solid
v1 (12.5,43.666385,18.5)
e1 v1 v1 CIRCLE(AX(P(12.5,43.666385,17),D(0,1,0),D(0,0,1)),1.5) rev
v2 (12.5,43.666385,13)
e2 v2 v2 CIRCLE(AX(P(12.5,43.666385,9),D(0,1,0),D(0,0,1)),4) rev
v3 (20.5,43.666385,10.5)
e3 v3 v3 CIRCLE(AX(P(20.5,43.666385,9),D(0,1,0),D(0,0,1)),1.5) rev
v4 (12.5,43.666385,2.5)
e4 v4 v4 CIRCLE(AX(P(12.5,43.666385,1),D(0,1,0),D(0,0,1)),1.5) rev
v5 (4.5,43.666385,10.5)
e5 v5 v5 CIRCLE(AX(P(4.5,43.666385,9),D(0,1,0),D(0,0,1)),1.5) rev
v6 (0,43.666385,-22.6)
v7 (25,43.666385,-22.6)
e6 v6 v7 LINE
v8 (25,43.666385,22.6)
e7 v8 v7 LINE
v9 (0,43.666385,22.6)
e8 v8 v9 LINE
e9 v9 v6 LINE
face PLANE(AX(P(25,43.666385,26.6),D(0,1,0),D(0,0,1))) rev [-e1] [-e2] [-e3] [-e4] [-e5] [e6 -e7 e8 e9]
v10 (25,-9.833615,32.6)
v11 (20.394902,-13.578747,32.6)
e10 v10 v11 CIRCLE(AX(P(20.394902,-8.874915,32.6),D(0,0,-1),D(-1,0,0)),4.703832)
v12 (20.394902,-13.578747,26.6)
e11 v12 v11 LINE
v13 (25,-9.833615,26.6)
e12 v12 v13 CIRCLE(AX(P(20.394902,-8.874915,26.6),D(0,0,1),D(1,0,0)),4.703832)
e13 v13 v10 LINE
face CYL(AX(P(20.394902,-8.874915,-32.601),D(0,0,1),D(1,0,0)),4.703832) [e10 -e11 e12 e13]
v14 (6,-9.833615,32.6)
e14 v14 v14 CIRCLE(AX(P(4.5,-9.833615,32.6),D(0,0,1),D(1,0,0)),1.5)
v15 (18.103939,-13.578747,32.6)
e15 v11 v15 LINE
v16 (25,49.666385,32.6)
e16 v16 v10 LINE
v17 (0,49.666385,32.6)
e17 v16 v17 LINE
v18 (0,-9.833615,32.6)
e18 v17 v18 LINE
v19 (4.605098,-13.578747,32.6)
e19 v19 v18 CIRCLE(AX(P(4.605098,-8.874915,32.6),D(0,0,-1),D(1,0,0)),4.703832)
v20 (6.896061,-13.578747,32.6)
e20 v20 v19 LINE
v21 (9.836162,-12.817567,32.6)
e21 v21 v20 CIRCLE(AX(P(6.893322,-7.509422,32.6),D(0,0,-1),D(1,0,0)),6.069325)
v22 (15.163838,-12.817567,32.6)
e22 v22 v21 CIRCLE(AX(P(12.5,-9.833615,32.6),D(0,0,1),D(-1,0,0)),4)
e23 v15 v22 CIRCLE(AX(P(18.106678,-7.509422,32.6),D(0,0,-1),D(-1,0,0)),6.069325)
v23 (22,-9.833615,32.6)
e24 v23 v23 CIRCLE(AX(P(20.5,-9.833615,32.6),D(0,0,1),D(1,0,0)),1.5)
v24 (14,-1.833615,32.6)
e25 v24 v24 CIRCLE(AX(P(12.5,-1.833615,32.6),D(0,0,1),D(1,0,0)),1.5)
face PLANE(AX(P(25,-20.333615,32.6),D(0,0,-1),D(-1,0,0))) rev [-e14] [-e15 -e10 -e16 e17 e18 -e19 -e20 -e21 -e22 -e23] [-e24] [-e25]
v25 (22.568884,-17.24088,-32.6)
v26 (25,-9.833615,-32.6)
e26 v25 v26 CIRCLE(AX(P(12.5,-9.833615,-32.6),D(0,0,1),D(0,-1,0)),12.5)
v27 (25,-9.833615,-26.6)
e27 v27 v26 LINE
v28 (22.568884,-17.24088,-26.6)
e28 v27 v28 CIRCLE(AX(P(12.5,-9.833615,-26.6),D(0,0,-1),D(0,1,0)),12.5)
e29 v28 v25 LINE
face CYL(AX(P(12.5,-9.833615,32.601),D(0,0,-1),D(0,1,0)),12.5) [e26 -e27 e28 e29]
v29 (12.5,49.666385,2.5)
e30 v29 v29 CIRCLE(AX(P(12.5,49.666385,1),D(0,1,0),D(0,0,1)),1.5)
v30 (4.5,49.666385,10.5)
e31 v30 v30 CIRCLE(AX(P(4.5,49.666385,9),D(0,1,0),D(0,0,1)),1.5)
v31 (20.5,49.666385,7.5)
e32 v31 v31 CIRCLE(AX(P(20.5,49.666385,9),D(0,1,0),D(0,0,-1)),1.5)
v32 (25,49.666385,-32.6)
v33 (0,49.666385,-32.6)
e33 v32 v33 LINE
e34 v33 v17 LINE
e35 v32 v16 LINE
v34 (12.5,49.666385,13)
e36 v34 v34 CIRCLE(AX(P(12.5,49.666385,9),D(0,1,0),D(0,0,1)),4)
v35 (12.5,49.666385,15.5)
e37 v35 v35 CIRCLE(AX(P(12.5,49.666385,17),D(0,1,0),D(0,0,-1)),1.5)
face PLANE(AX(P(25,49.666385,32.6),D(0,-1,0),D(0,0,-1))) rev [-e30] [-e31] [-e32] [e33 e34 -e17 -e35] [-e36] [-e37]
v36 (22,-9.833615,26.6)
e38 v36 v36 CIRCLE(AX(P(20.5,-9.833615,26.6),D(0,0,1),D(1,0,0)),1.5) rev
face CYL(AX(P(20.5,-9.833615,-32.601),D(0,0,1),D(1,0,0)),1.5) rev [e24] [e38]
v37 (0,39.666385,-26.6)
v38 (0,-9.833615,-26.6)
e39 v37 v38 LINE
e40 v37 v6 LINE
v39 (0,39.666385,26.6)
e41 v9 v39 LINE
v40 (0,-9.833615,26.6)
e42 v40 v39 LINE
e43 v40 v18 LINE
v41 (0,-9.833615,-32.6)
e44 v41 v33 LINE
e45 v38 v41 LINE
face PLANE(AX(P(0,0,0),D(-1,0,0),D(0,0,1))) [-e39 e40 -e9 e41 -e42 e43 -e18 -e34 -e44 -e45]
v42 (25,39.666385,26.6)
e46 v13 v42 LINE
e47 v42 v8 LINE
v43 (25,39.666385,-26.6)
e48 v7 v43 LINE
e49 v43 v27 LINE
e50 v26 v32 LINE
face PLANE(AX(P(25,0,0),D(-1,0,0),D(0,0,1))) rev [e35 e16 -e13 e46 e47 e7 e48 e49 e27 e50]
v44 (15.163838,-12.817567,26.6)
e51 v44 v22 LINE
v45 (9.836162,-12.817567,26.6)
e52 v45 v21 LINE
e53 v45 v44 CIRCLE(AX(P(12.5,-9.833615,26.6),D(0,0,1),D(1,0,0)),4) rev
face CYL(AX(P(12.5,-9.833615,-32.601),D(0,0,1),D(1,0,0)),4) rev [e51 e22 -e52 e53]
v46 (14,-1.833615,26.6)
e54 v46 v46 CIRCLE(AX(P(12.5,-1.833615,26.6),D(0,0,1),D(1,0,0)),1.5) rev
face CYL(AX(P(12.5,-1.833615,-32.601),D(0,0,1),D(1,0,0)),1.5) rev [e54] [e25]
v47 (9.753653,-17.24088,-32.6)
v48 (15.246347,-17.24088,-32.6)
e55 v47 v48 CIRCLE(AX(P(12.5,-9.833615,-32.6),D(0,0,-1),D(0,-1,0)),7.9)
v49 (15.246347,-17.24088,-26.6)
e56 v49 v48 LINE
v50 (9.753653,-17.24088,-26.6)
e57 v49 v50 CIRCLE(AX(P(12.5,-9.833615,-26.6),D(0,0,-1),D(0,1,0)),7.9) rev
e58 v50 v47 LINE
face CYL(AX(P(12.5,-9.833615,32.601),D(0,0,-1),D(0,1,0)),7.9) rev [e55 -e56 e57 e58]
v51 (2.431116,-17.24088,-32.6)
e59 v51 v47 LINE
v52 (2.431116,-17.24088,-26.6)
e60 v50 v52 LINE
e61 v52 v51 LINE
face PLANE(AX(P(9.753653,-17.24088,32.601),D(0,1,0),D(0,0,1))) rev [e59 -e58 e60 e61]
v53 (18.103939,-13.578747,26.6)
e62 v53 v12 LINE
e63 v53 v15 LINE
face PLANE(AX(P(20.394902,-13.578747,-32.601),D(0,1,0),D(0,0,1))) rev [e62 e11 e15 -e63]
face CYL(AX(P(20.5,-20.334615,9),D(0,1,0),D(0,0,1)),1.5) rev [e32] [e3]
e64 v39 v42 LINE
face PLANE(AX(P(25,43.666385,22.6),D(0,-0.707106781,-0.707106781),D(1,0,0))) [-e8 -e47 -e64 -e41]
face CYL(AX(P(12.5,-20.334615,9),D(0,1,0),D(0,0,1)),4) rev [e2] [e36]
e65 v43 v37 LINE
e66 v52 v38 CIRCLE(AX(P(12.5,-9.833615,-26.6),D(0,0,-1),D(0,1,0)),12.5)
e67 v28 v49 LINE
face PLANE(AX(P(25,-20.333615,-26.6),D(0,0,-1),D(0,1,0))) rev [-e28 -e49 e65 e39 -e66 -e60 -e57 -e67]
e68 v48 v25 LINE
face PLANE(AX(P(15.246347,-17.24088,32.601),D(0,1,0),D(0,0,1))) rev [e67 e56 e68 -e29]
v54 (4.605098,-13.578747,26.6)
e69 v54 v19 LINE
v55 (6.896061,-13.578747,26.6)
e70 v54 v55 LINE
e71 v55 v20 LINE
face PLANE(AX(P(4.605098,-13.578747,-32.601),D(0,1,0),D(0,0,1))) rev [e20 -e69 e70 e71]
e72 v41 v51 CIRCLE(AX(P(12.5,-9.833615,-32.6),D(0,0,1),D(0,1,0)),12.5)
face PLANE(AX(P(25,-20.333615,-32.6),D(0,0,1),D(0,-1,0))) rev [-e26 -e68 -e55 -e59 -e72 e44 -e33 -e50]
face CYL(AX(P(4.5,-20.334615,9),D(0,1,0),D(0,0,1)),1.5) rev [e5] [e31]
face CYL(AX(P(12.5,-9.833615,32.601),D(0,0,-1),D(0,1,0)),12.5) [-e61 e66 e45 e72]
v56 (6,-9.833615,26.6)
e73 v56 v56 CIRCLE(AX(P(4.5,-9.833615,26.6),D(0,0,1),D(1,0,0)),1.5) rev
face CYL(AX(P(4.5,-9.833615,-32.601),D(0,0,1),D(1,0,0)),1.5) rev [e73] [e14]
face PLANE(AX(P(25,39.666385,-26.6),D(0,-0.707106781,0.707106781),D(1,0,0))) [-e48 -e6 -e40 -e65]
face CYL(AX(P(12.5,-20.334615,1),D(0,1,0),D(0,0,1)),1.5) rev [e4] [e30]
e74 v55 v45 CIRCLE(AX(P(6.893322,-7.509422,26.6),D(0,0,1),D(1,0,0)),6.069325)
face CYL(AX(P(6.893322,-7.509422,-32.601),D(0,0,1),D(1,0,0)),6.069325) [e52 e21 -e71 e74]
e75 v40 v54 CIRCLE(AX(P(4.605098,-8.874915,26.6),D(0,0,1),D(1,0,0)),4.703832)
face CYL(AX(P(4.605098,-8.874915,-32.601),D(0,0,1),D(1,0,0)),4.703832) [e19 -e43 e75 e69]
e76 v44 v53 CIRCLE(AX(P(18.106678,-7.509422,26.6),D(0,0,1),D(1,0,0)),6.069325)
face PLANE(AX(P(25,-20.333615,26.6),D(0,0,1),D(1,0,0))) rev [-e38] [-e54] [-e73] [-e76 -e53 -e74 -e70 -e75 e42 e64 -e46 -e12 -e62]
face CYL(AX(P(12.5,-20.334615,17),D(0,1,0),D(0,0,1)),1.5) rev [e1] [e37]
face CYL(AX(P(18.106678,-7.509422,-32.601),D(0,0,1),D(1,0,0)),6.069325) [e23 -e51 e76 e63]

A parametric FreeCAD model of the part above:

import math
import FreeCAD as App
import Part
import Sketcher

V = App.Vector


def edges_at(feature, points):
    """Names of the edges that pass closest to the given points."""
    edges = feature.Shape.Edges
    near = lambda p: min(range(len(edges)), key=lambda i: edges[i].distToShape(Part.Vertex(*p))[0])
    return sorted({f"Edge{near(p) + 1}" for p in points})

doc = App.newDocument("Part")
body = doc.addObject("PartDesign::Body", "Body")

# Sketch on YZ plane
sketch1 = body.newObject("Sketcher::SketchObject", "Sketch")
sketch1.AttachmentSupport = (doc.getObject("YZ_Plane"), [""])
sketch1.MapMode = "FlatFace"
sketch1.addGeometry([
    Part.LineSegment(V(-20, 27, 0), V(44, 27, 0)),  # 0
    Part.LineSegment(V(44, 27, 0), V(44, -27, 0)),  # 1
    Part.LineSegment(V(44, -27, 0), V(-20, -27, 0)),  # 2
    Part.LineSegment(V(-20, -27, 0), V(-20, -33, 0)),  # 3
    Part.LineSegment(V(-20, -33, 0), V(50, -33, 0)),  # 4
    Part.LineSegment(V(50, -33, 0), V(50, 33, 0)),  # 5
    Part.LineSegment(V(50, 33, 0), V(-20, 33, 0)),  # 6
    Part.LineSegment(V(-20, 33, 0), V(-20, 27, 0)),  # 7
], False)
sketch1.addConstraint([
    Sketcher.Constraint("Coincident", 0, 2, 1, 1),
    Sketcher.Constraint("Coincident", 1, 2, 2, 1),
    Sketcher.Constraint("Coincident", 2, 2, 3, 1),
    Sketcher.Constraint("Coincident", 3, 2, 4, 1),
    Sketcher.Constraint("Coincident", 4, 2, 5, 1),
    Sketcher.Constraint("Coincident", 5, 2, 6, 1),
    Sketcher.Constraint("Coincident", 6, 2, 7, 1),
    Sketcher.Constraint("Coincident", 7, 2, 0, 1),
    Sketcher.Constraint("Horizontal", 0),
    Sketcher.Constraint("Vertical", 1),
    Sketcher.Constraint("Horizontal", 2),
    Sketcher.Constraint("Vertical", 3),
    Sketcher.Constraint("Horizontal", 4),
    Sketcher.Constraint("Vertical", 5),
    Sketcher.Constraint("Horizontal", 6),
    Sketcher.Constraint("Vertical", 7),
    Sketcher.Constraint("Symmetric", 3, 2, 6, 2, -1),
    Sketcher.Constraint("Equal", 3, 7),
    Sketcher.Constraint("DistanceX", 0, 1, 0, 2, 64.0),
    Sketcher.Constraint("DistanceX", 4, 1, 4, 2, 70.0),
    Sketcher.Constraint("DistanceY", 3, 2, 3, 1, 6.0),
    Sketcher.Constraint("DistanceY", 1, 2, 1, 1, 53.2),
    Sketcher.Constraint("DistanceX", -1, 1, 0, 2, 43.666385),
])
pad1 = body.newObject("PartDesign::Pad", "Pad")
pad1.Profile = sketch1
pad1.Length = 25

# Sketch on XY plane
sketch2 = body.newObject("Sketcher::SketchObject", "Sketch001")
sketch2.AttachmentSupport = (doc.getObject("XY_Plane"), [""])
sketch2.MapMode = "FlatFace"
sketch2.AttachmentOffset = App.Placement(V(0, 0, -32.6), App.Rotation())
sketch2.addGeometry([
    Part.LineSegment(V(15, -17, 0), V(23, -17, 0)),  # 0
    Part.ArcOfCircle(Part.Circle(V(12, -10, 0), V(0, 0, 1), 13), math.radians(-36), math.radians(0)),  # 1
    Part.LineSegment(V(25, -10, 0), V(25, -20, 0)),  # 2
    Part.LineSegment(V(25, -20, 0), V(0, -20, 0)),  # 3
    Part.LineSegment(V(0, -20, 0), V(0, -10, 0)),  # 4
    Part.ArcOfCircle(Part.Circle(V(13, -10, 0), V(0, 0, 1), 13), math.radians(-180), math.radians(-144)),  # 5
    Part.LineSegment(V(2, -17, 0), V(10, -17, 0)),  # 6
    Part.ArcOfCircle(Part.Circle(V(12, -10, 0), V(0, 0, 1), 8), math.radians(-70), math.radians(250)),  # 7
], False)
sketch2.addConstraint([
    Sketcher.Constraint("Coincident", 0, 2, 1, 1),
    Sketcher.Constraint("Tangent", 1, 2, 2, 1),
    Sketcher.Constraint("Coincident", 2, 2, 3, 1),
    Sketcher.Constraint("Coincident", 3, 2, 4, 1),
    Sketcher.Constraint("Tangent", 4, 2, 5, 1),
    Sketcher.Constraint("Coincident", 5, 2, 6, 1),
    Sketcher.Constraint("Coincident", 6, 2, 7, 2),
    Sketcher.Constraint("Coincident", 7, 1, 0, 1),
    Sketcher.Constraint("Horizontal", 0),
    Sketcher.Constraint("Vertical", 2),
    Sketcher.Constraint("Horizontal", 3),
    Sketcher.Constraint("Vertical", 4),
    Sketcher.Constraint("Horizontal", 6),
    Sketcher.Constraint("Coincident", 5, 3, 1, 3),
    Sketcher.Constraint("Coincident", 7, 3, 1, 3),
    Sketcher.Constraint("Equal", 1, 5),
    Sketcher.Constraint("PointOnObject", 3, 2, -2),
    Sketcher.Constraint("Horizontal", 0, 2, 5, 2),
    Sketcher.Constraint("Radius", 1, 12.5),
    Sketcher.Constraint("Radius", 7, 7.9),
    Sketcher.Constraint("DistanceY", 2, 2, 2, 1, 10.5),
    Sketcher.Constraint("DistanceX", 0, 1, 0, 2, 7.322537),
    Sketcher.Constraint("DistanceY", 0, 2, -1, 1, 17.24088),
])
pocket1 = body.newObject("PartDesign::Pocket", "Pocket")
pocket1.Profile = sketch2
pocket1.Type = "UpToFirst"
pocket1.Reversed = True

# Sketch on XZ plane
sketch3 = body.newObject("Sketcher::SketchObject", "Sketch002")
sketch3.AttachmentSupport = (doc.getObject("XZ_Plane"), [""])
sketch3.MapMode = "FlatFace"
sketch3.AttachmentOffset = App.Placement(V(0, 0, -49.666385), App.Rotation())
sketch3.addGeometry(Part.Circle(V(12.5, 1, 0), V(0, 0, 1), 1.5), False)
sketch3.addConstraint([
    Sketcher.Constraint("Diameter", 0, 3.0),
    Sketcher.Constraint("DistanceY", -1, 1, 0, 3, 1.0),
    Sketcher.Constraint("DistanceX", -1, 1, 0, 3, 12.5),
])
pocket2 = body.newObject("PartDesign::Pocket", "Pocket001")
pocket2.Profile = sketch3
pocket2.Type = "UpToFirst"
pocket2.Reversed = True

# Sketch on XZ plane
sketch4 = body.newObject("Sketcher::SketchObject", "Sketch003")
sketch4.AttachmentSupport = (doc.getObject("XZ_Plane"), [""])
sketch4.MapMode = "FlatFace"
sketch4.AttachmentOffset = App.Placement(V(0, 0, -49.666385), App.Rotation())
sketch4.addGeometry(Part.Circle(V(4.5, 9, 0), V(0, 0, 1), 1.5), False)
sketch4.addConstraint([
    Sketcher.Constraint("Diameter", 0, 3.0),
    Sketcher.Constraint("DistanceY", -1, 1, 0, 3, 9.0),
    Sketcher.Constraint("DistanceX", -1, 1, 0, 3, 4.5),
])
pocket3 = body.newObject("PartDesign::Pocket", "Pocket002")
pocket3.Profile = sketch4
pocket3.Type = "UpToFirst"
pocket3.Reversed = True

# Sketch on XZ plane
sketch5 = body.newObject("Sketcher::SketchObject", "Sketch004")
sketch5.AttachmentSupport = (doc.getObject("XZ_Plane"), [""])
sketch5.MapMode = "FlatFace"
sketch5.AttachmentOffset = App.Placement(V(0, 0, -49.666385), App.Rotation())
sketch5.addGeometry(Part.Circle(V(12.5, 17, 0), V(0, 0, 1), 1.5), False)
sketch5.addConstraint([
    Sketcher.Constraint("Diameter", 0, 3.0),
    Sketcher.Constraint("DistanceY", -1, 1, 0, 3, 17.0),
    Sketcher.Constraint("DistanceX", -1, 1, 0, 3, 12.5),
])
pocket4 = body.newObject("PartDesign::Pocket", "Pocket003")
pocket4.Profile = sketch5
pocket4.Type = "UpToFirst"
pocket4.Reversed = True

# Sketch on XZ plane
sketch6 = body.newObject("Sketcher::SketchObject", "Sketch005")
sketch6.AttachmentSupport = (doc.getObject("XZ_Plane"), [""])
sketch6.MapMode = "FlatFace"
sketch6.AttachmentOffset = App.Placement(V(0, 0, -49.666385), App.Rotation())
sketch6.addGeometry(Part.Circle(V(20.5, 9, 0), V(0, 0, 1), 1.5), False)
sketch6.addConstraint([
    Sketcher.Constraint("Diameter", 0, 3.0),
    Sketcher.Constraint("DistanceY", -1, 1, 0, 3, 9.0),
    Sketcher.Constraint("DistanceX", -1, 1, 0, 3, 20.5),
])
pocket5 = body.newObject("PartDesign::Pocket", "Pocket004")
pocket5.Profile = sketch6
pocket5.Type = "UpToFirst"
pocket5.Reversed = True

# Sketch on XZ plane
sketch7 = body.newObject("Sketcher::SketchObject", "Sketch006")
sketch7.AttachmentSupport = (doc.getObject("XZ_Plane"), [""])
sketch7.MapMode = "FlatFace"
sketch7.AttachmentOffset = App.Placement(V(0, 0, -49.666385), App.Rotation())
sketch7.addGeometry(Part.Circle(V(12.5, 9, 0), V(0, 0, 1), 4), False)
sketch7.addConstraint([
    Sketcher.Constraint("Diameter", 0, 8.0),
    Sketcher.Constraint("DistanceY", -1, 1, 0, 3, 9.0),
    Sketcher.Constraint("DistanceX", -1, 1, 0, 3, 12.5),
])
pocket6 = body.newObject("PartDesign::Pocket", "Pocket005")
pocket6.Profile = sketch7
pocket6.Type = "UpToFirst"
pocket6.Reversed = True
doc.recompute()

chamfer = body.newObject("PartDesign::Chamfer", "Chamfer")
chamfer.Base = (pocket6, edges_at(pocket6, [(12.5, 43.666, -26.6), (12.5, 43.666, 26.6)]))
chamfer.Size = 4

# Sketch on XY plane
sketch8 = body.newObject("Sketcher::SketchObject", "Sketch007")
sketch8.AttachmentSupport = (doc.getObject("XY_Plane"), [""])
sketch8.MapMode = "FlatFace"
sketch8.AttachmentOffset = App.Placement(V(0, 0, 32.6), App.Rotation())
sketch8.addGeometry(Part.Circle(V(4.5, -9.8, 0), V(0, 0, 1), 1.5), False)
sketch8.addConstraint([
    Sketcher.Constraint("Diameter", 0, 3.0),
    Sketcher.Constraint("DistanceX", -1, 1, 0, 3, 4.5),
    Sketcher.Constraint("DistanceY", 0, 3, -1, 1, 9.833615),
])
pocket7 = body.newObject("PartDesign::Pocket", "Pocket006")
pocket7.Profile = sketch8
pocket7.Type = "UpToFirst"

# Sketch on XY plane
sketch9 = body.newObject("Sketcher::SketchObject", "Sketch008")
sketch9.AttachmentSupport = (doc.getObject("XY_Plane"), [""])
sketch9.MapMode = "FlatFace"
sketch9.AttachmentOffset = App.Placement(V(0, 0, 32.6), App.Rotation())
sketch9.addGeometry(Part.Circle(V(12.5, -1.8, 0), V(0, 0, 1), 1.5), False)
sketch9.addConstraint([
    Sketcher.Constraint("Diameter", 0, 3.0),
    Sketcher.Constraint("DistanceX", -1, 1, 0, 3, 12.5),
    Sketcher.Constraint("DistanceY", 0, 3, -1, 1, 1.833615),
])
pocket8 = body.newObject("PartDesign::Pocket", "Pocket007")
pocket8.Profile = sketch9
pocket8.Type = "UpToFirst"

# Sketch on XY plane
sketch10 = body.newObject("Sketcher::SketchObject", "Sketch009")
sketch10.AttachmentSupport = (doc.getObject("XY_Plane"), [""])
sketch10.MapMode = "FlatFace"
sketch10.AttachmentOffset = App.Placement(V(0, 0, 32.6), App.Rotation())
sketch10.addGeometry(Part.Circle(V(20.5, -9.8, 0), V(0, 0, 1), 1.5), False)
sketch10.addConstraint([
    Sketcher.Constraint("Diameter", 0, 3.0),
    Sketcher.Constraint("DistanceX", -1, 1, 0, 3, 20.5),
    Sketcher.Constraint("DistanceY", 0, 3, -1, 1, 9.833615),
])
pocket9 = body.newObject("PartDesign::Pocket", "Pocket008")
pocket9.Profile = sketch10
pocket9.Type = "UpToFirst"

# Sketch on XY plane
sketch11 = body.newObject("Sketcher::SketchObject", "Sketch010")
sketch11.AttachmentSupport = (doc.getObject("XY_Plane"), [""])
sketch11.MapMode = "FlatFace"
sketch11.AttachmentOffset = App.Placement(V(0, 0, 32.6), App.Rotation())
sketch11.addGeometry([
    Part.LineSegment(V(6.9, -13.6, 0), V(4.6, -13.6, 0)),  # 0
    Part.ArcOfCircle(Part.Circle(V(4.6, -8.9, 0), V(0, 0, 1), 4.7), math.radians(-168), math.radians(-90)),  # 1
    Part.LineSegment(V(0, -9.8, 0), V(0, -20.3, 0)),  # 2
    Part.LineSegment(V(0, -20.3, 0), V(25, -20.3, 0)),  # 3
    Part.LineSegment(V(25, -20.3, 0), V(25, -9.8, 0)),  # 4
    Part.ArcOfCircle(Part.Circle(V(20.4, -8.9, 0), V(0, 0, 1), 4.7), math.radians(-90), math.radians(-12)),  # 5
    Part.LineSegment(V(20.4, -13.6, 0), V(18.1, -13.6, 0)),  # 6
    Part.ArcOfCircle(Part.Circle(V(18.1, -7.5, 0), V(0, 0, 1), 6.1), math.radians(-119), math.radians(-90)),  # 7
    Part.ArcOfCircle(Part.Circle(V(12.5, -9.8, 0), V(0, 0, 1), 4), math.radians(-48), math.radians(228)),  # 8
    Part.ArcOfCircle(Part.Circle(V(6.9, -7.5, 0), V(0, 0, 1), 6.1), math.radians(-90), math.radians(-61)),  # 9
], False)
sketch11.addConstraint([
    Sketcher.Constraint("Tangent", 0, 2, 1, 2),
    Sketcher.Constraint("Coincident", 1, 1, 2, 1),
    Sketcher.Constraint("Coincident", 2, 2, 3, 1),
    Sketcher.Constraint("Coincident", 3, 2, 4, 1),
    Sketcher.Constraint("Coincident", 4, 2, 5, 2),
    Sketcher.Constraint("Tangent", 5, 1, 6, 1),
    Sketcher.Constraint("Coincident", 6, 2, 7, 2),
    Sketcher.Constraint("Coincident", 7, 1, 8, 1),
    Sketcher.Constraint("Coincident", 8, 2, 9, 2),
    Sketcher.Constraint("Coincident", 9, 1, 0, 1),
    Sketcher.Constraint("Horizontal", 0),
    Sketcher.Constraint("Vertical", 2),
    Sketcher.Constraint("Horizontal", 3),
    Sketcher.Constraint("Vertical", 4),
    Sketcher.Constraint("Horizontal", 6),
    Sketcher.Constraint("Equal", 1, 5),
    Sketcher.Constraint("Equal", 7, 9),
    Sketcher.Constraint("PointOnObject", 1, 1, -2),
    Sketcher.Constraint("Horizontal", 1, 3, 5, 3),
    Sketcher.Constraint("Horizontal", 8, 3, 1, 1),
    Sketcher.Constraint("Horizontal", 1, 1, 4, 2),
    Sketcher.Constraint("Horizontal", 7, 1, 8, 2),
    Sketcher.Constraint("Equal", 0, 6),
    Sketcher.Constraint("Radius", 8, 4.0),
    Sketcher.Constraint("DistanceX", 3, 1, 3, 2, 25.0),
    Sketcher.Constraint("DistanceY", 2, 2, 2, 1, 10.5),
    Sketcher.Constraint("DistanceX", -1, 1, 8, 3, 12.5),
    Sketcher.Constraint("Radius", 1, 4.703832),
    Sketcher.Constraint("Radius", 7, 6.069325),
    Sketcher.Constraint("DistanceY", 8, 3, 5, 3, 0.9587),
    Sketcher.Constraint("DistanceX", 7, 1, 6, 2, 2.940101),
    Sketcher.Constraint("DistanceX", 0, 2, 0, 1, 2.290963),
    Sketcher.Constraint("DistanceY", 1, 3, -1, 1, 8.874915),
])
pocket10 = body.newObject("PartDesign::Pocket", "Pocket009")
pocket10.Profile = sketch11
pocket10.Type = "UpToFirst"

doc.recompute()
